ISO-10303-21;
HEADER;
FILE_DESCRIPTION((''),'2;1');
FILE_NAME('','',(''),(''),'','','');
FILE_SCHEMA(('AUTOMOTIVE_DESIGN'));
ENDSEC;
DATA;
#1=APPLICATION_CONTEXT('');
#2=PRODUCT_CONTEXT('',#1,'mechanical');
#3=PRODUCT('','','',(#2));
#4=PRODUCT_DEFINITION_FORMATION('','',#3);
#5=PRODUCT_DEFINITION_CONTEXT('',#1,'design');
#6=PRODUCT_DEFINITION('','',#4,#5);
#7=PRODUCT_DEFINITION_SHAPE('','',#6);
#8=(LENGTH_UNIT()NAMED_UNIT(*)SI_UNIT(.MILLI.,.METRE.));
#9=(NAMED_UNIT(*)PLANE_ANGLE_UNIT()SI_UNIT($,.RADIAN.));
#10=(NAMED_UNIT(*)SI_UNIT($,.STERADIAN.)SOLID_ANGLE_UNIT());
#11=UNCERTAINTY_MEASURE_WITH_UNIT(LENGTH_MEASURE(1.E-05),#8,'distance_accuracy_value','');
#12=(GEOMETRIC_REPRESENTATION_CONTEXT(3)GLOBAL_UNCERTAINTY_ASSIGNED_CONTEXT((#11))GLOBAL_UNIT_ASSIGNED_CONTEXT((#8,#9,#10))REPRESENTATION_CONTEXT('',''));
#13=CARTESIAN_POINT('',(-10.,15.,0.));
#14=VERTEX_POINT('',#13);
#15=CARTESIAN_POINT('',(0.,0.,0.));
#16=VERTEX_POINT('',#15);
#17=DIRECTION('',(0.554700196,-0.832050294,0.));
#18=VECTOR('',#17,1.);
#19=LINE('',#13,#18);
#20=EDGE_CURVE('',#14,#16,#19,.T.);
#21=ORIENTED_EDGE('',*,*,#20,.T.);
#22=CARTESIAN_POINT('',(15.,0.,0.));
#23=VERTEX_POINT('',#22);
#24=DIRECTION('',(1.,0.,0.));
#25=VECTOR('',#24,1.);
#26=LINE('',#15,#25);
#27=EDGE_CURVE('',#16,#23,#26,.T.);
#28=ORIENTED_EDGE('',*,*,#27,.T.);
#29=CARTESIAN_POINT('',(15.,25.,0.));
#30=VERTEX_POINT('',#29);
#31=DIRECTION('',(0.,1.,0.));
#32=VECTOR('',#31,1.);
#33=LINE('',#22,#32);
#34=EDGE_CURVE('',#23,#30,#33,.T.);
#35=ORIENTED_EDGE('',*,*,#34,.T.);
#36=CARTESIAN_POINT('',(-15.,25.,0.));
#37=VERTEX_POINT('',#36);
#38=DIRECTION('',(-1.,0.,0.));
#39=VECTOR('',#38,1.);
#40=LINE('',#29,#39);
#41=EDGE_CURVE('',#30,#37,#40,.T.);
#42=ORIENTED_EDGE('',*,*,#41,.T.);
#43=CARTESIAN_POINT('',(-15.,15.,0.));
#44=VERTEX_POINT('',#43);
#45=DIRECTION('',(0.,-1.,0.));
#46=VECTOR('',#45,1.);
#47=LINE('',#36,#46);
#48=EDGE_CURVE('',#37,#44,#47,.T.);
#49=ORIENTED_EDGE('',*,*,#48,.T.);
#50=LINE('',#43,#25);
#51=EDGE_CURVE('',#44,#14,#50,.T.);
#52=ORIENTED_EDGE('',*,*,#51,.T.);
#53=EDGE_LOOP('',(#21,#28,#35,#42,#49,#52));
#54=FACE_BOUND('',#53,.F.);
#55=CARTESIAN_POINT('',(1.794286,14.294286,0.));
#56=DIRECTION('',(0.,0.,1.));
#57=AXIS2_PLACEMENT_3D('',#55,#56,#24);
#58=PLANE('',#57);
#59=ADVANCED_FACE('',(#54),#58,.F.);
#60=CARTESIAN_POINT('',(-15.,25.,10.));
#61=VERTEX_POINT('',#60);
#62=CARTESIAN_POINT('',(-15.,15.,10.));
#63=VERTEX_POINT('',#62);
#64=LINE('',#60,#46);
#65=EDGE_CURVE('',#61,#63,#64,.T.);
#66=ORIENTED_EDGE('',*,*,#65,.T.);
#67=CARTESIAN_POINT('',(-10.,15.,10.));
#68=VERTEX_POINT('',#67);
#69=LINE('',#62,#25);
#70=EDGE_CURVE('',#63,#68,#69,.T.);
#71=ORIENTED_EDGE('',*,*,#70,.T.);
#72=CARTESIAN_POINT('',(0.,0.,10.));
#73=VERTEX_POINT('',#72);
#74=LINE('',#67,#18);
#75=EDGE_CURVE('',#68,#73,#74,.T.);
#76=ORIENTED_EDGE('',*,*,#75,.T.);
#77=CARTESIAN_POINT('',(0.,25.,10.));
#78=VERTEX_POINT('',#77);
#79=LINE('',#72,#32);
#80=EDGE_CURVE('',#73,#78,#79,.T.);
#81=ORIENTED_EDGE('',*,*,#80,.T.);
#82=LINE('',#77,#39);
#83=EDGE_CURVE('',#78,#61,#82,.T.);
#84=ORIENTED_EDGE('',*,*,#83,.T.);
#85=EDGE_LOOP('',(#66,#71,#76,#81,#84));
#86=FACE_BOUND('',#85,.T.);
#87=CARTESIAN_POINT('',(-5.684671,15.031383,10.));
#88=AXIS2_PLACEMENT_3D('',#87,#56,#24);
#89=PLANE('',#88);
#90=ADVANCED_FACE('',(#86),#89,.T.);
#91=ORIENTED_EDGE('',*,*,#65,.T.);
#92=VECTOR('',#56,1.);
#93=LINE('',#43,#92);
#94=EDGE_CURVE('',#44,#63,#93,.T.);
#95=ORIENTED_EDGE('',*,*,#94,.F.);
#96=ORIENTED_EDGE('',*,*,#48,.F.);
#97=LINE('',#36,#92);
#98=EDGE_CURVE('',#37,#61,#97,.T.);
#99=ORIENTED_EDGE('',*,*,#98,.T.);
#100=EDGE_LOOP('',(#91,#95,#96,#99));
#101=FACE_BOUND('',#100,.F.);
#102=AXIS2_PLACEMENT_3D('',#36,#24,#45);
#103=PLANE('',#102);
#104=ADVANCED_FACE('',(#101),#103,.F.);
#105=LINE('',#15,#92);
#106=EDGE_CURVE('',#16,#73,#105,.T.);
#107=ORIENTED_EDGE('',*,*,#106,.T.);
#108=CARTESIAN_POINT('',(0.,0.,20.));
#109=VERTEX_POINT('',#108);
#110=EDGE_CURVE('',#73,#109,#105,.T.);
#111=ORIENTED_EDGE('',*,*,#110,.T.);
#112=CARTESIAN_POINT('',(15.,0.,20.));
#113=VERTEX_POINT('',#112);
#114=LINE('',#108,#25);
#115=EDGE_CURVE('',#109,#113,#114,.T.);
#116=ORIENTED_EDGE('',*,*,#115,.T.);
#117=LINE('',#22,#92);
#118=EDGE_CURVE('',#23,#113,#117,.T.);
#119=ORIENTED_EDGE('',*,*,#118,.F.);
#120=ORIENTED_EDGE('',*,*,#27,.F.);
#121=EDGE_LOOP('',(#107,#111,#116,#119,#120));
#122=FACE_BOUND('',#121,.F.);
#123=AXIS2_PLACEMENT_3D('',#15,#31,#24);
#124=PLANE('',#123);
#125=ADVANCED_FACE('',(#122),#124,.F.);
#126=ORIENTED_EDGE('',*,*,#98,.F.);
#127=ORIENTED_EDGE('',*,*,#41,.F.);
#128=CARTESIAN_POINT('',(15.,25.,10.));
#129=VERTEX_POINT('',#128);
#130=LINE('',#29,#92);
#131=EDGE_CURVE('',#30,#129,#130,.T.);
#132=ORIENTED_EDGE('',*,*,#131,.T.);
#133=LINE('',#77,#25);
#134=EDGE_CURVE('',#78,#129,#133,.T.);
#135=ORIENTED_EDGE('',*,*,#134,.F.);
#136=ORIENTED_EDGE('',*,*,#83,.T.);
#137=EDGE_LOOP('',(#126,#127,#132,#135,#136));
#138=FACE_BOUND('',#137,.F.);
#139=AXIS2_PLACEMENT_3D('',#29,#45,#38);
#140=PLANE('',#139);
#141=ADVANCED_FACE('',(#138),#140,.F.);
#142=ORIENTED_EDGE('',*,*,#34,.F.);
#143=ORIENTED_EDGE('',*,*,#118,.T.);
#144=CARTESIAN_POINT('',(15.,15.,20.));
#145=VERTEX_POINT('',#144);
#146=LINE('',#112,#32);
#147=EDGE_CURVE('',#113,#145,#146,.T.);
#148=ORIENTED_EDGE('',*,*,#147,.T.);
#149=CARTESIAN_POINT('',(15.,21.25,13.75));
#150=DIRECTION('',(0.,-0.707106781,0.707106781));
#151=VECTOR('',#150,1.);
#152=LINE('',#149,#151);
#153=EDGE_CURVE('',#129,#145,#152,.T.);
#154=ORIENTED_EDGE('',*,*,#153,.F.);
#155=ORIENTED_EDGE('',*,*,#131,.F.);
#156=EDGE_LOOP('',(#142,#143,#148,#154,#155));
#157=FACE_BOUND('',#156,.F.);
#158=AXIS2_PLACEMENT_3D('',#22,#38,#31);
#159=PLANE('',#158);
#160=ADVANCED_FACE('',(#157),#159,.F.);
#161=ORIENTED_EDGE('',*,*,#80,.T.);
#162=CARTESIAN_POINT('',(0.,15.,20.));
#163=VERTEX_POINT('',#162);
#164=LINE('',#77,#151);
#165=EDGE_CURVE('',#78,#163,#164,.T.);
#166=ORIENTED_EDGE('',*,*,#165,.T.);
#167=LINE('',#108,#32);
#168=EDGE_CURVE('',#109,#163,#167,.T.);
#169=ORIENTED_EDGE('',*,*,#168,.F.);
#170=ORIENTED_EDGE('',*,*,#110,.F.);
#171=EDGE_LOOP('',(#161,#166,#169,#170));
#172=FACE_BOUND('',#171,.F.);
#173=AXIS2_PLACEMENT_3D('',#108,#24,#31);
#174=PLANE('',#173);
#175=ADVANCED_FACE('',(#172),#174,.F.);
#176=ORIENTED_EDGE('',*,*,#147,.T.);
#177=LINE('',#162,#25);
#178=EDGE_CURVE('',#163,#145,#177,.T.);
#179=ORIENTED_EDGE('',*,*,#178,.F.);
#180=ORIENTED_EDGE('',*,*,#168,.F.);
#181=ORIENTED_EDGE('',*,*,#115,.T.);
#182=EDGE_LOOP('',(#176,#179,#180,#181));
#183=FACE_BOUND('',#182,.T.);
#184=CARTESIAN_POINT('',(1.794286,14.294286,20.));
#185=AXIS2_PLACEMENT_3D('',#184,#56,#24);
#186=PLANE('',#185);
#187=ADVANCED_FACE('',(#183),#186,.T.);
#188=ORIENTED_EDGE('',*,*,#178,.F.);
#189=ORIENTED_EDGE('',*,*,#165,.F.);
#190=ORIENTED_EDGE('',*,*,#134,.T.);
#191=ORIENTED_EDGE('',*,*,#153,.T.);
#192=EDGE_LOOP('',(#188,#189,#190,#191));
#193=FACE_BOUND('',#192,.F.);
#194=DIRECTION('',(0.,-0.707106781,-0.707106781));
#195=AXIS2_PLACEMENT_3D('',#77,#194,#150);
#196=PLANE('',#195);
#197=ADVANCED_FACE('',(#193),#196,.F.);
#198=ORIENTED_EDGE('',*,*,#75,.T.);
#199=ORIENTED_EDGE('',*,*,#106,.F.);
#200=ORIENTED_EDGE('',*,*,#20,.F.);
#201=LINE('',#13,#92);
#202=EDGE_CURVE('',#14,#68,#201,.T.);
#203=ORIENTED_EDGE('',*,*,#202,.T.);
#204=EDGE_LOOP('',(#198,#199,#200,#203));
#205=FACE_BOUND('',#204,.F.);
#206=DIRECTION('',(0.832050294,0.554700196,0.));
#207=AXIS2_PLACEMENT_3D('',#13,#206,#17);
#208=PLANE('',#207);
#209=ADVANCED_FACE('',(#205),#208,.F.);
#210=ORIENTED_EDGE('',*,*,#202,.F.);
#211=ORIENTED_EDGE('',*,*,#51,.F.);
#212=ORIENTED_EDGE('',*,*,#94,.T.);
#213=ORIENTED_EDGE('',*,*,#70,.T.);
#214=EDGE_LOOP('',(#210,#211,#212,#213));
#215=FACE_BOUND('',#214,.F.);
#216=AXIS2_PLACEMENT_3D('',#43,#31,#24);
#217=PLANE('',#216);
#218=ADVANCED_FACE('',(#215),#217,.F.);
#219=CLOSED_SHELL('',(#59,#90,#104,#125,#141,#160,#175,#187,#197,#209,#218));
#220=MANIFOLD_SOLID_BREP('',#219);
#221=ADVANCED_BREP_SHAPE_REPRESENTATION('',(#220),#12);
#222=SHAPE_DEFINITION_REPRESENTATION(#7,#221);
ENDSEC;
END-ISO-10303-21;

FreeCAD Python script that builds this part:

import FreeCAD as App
import Part
import Sketcher

V = App.Vector
Q = App.Units.Quantity


def add_polygon(sketch, points):
    """Adds a closed chain of lines whose ends are joined by coincident constraints."""
    first, n = sketch.GeometryCount, len(points)
    for a, b in zip(points, points[1:] + points[:1]):
        sketch.addGeometry(Part.LineSegment(App.Vector(*a, 0), App.Vector(*b, 0)), False)
    for i in range(n):
        sketch.addConstraint(Sketcher.Constraint("Coincident", first + i, 2, first + (i + 1) % n, 1))

doc = App.newDocument("Part")
body = doc.addObject("PartDesign::Body", "Body")

sketch1 = body.newObject("Sketcher::SketchObject", "Sketch")
sketch1.AttachmentSupport = (doc.getObject("XY_Plane"), [""])
sketch1.MapMode = "FlatFace"
add_polygon(sketch1, [(0, 0), (15, 0), (15, 25), (-15, 25), (-15, 15), (-10, 15)])
sketch1.addConstraint(Sketcher.Constraint("Horizontal", 0))
sketch1.addConstraint(Sketcher.Constraint("Vertical", 1))
sketch1.addConstraint(Sketcher.Constraint("Horizontal", 2))
sketch1.addConstraint(Sketcher.Constraint("Vertical", 3))
sketch1.addConstraint(Sketcher.Constraint("Horizontal", 4))
sketch1.addConstraint(Sketcher.Constraint("Coincident", 5, 2, -1, 1))
sketch1.addConstraint(Sketcher.Constraint("DistanceX", 0, 1, 0, 2, Q("15 mm")))
sketch1.addConstraint(Sketcher.Constraint("DistanceX", 2, 2, 2, 1, Q("30 mm")))
sketch1.addConstraint(Sketcher.Constraint("DistanceX", 4, 1, 4, 2, Q("5 mm")))
sketch1.addConstraint(Sketcher.Constraint("DistanceY", 1, 1, 1, 2, Q("25 mm")))
sketch1.addConstraint(Sketcher.Constraint("DistanceY", 3, 2, 3, 1, Q("10 mm")))
pad1 = body.newObject("PartDesign::Pad", "Pad")
pad1.Profile = sketch1
pad1.Length = 20

sketch2 = body.newObject("Sketcher::SketchObject", "Sketch001")
sketch2.AttachmentSupport = (doc.getObject("XY_Plane"), [""])
sketch2.MapMode = "FlatFace"
sketch2.AttachmentOffset = App.Placement(V(0, 0, 20), App.Rotation())
add_polygon(sketch2, [(0, 0), (0, 25), (-15, 25), (-15, 15), (-10, 15)])
sketch2.addConstraint(Sketcher.Constraint("Vertical", 0))
sketch2.addConstraint(Sketcher.Constraint("Horizontal", 1))
sketch2.addConstraint(Sketcher.Constraint("Vertical", 2))
sketch2.addConstraint(Sketcher.Constraint("Horizontal", 3))
sketch2.addConstraint(Sketcher.Constraint("Coincident", 4, 2, -1, 1))
sketch2.addConstraint(Sketcher.Constraint("DistanceX", 1, 2, 1, 1, Q("15 mm")))
sketch2.addConstraint(Sketcher.Constraint("DistanceX", 3, 1, 3, 2, Q("5 mm")))
sketch2.addConstraint(Sketcher.Constraint("DistanceY", 0, 1, 0, 2, Q("25 mm")))
sketch2.addConstraint(Sketcher.Constraint("DistanceY", 2, 2, 2, 1, Q("10 mm")))
pocket1 = body.newObject("PartDesign::Pocket", "Pocket")
pocket1.Profile = sketch2
pocket1.Length = 10

sketch3 = body.newObject("Sketcher::SketchObject", "Sketch002")
sketch3.AttachmentSupport = (doc.getObject("YZ_Plane"), [""])
sketch3.MapMode = "FlatFace"
add_polygon(sketch3, [(25, 10), (15, 20), (25, 20)])
sketch3.addConstraint(Sketcher.Constraint("Horizontal", 1))
sketch3.addConstraint(Sketcher.Constraint("Vertical", 2))
sketch3.addConstraint(Sketcher.Constraint("Equal", 1, 2))
sketch3.addConstraint(Sketcher.Constraint("DistanceX", 1, 1, 1, 2, Q("10 mm")))
sketch3.addConstraint(Sketcher.Constraint("DistanceX", -1, 1, 0, 2, Q("15 mm")))
sketch3.addConstraint(Sketcher.Constraint("DistanceY", -1, 1, 0, 2, Q("20 mm")))
pocket2 = body.newObject("PartDesign::Pocket", "Pocket001")
pocket2.Profile = sketch3
pocket2.Length = 20
pocket2.Reversed = True

doc.recompute()
